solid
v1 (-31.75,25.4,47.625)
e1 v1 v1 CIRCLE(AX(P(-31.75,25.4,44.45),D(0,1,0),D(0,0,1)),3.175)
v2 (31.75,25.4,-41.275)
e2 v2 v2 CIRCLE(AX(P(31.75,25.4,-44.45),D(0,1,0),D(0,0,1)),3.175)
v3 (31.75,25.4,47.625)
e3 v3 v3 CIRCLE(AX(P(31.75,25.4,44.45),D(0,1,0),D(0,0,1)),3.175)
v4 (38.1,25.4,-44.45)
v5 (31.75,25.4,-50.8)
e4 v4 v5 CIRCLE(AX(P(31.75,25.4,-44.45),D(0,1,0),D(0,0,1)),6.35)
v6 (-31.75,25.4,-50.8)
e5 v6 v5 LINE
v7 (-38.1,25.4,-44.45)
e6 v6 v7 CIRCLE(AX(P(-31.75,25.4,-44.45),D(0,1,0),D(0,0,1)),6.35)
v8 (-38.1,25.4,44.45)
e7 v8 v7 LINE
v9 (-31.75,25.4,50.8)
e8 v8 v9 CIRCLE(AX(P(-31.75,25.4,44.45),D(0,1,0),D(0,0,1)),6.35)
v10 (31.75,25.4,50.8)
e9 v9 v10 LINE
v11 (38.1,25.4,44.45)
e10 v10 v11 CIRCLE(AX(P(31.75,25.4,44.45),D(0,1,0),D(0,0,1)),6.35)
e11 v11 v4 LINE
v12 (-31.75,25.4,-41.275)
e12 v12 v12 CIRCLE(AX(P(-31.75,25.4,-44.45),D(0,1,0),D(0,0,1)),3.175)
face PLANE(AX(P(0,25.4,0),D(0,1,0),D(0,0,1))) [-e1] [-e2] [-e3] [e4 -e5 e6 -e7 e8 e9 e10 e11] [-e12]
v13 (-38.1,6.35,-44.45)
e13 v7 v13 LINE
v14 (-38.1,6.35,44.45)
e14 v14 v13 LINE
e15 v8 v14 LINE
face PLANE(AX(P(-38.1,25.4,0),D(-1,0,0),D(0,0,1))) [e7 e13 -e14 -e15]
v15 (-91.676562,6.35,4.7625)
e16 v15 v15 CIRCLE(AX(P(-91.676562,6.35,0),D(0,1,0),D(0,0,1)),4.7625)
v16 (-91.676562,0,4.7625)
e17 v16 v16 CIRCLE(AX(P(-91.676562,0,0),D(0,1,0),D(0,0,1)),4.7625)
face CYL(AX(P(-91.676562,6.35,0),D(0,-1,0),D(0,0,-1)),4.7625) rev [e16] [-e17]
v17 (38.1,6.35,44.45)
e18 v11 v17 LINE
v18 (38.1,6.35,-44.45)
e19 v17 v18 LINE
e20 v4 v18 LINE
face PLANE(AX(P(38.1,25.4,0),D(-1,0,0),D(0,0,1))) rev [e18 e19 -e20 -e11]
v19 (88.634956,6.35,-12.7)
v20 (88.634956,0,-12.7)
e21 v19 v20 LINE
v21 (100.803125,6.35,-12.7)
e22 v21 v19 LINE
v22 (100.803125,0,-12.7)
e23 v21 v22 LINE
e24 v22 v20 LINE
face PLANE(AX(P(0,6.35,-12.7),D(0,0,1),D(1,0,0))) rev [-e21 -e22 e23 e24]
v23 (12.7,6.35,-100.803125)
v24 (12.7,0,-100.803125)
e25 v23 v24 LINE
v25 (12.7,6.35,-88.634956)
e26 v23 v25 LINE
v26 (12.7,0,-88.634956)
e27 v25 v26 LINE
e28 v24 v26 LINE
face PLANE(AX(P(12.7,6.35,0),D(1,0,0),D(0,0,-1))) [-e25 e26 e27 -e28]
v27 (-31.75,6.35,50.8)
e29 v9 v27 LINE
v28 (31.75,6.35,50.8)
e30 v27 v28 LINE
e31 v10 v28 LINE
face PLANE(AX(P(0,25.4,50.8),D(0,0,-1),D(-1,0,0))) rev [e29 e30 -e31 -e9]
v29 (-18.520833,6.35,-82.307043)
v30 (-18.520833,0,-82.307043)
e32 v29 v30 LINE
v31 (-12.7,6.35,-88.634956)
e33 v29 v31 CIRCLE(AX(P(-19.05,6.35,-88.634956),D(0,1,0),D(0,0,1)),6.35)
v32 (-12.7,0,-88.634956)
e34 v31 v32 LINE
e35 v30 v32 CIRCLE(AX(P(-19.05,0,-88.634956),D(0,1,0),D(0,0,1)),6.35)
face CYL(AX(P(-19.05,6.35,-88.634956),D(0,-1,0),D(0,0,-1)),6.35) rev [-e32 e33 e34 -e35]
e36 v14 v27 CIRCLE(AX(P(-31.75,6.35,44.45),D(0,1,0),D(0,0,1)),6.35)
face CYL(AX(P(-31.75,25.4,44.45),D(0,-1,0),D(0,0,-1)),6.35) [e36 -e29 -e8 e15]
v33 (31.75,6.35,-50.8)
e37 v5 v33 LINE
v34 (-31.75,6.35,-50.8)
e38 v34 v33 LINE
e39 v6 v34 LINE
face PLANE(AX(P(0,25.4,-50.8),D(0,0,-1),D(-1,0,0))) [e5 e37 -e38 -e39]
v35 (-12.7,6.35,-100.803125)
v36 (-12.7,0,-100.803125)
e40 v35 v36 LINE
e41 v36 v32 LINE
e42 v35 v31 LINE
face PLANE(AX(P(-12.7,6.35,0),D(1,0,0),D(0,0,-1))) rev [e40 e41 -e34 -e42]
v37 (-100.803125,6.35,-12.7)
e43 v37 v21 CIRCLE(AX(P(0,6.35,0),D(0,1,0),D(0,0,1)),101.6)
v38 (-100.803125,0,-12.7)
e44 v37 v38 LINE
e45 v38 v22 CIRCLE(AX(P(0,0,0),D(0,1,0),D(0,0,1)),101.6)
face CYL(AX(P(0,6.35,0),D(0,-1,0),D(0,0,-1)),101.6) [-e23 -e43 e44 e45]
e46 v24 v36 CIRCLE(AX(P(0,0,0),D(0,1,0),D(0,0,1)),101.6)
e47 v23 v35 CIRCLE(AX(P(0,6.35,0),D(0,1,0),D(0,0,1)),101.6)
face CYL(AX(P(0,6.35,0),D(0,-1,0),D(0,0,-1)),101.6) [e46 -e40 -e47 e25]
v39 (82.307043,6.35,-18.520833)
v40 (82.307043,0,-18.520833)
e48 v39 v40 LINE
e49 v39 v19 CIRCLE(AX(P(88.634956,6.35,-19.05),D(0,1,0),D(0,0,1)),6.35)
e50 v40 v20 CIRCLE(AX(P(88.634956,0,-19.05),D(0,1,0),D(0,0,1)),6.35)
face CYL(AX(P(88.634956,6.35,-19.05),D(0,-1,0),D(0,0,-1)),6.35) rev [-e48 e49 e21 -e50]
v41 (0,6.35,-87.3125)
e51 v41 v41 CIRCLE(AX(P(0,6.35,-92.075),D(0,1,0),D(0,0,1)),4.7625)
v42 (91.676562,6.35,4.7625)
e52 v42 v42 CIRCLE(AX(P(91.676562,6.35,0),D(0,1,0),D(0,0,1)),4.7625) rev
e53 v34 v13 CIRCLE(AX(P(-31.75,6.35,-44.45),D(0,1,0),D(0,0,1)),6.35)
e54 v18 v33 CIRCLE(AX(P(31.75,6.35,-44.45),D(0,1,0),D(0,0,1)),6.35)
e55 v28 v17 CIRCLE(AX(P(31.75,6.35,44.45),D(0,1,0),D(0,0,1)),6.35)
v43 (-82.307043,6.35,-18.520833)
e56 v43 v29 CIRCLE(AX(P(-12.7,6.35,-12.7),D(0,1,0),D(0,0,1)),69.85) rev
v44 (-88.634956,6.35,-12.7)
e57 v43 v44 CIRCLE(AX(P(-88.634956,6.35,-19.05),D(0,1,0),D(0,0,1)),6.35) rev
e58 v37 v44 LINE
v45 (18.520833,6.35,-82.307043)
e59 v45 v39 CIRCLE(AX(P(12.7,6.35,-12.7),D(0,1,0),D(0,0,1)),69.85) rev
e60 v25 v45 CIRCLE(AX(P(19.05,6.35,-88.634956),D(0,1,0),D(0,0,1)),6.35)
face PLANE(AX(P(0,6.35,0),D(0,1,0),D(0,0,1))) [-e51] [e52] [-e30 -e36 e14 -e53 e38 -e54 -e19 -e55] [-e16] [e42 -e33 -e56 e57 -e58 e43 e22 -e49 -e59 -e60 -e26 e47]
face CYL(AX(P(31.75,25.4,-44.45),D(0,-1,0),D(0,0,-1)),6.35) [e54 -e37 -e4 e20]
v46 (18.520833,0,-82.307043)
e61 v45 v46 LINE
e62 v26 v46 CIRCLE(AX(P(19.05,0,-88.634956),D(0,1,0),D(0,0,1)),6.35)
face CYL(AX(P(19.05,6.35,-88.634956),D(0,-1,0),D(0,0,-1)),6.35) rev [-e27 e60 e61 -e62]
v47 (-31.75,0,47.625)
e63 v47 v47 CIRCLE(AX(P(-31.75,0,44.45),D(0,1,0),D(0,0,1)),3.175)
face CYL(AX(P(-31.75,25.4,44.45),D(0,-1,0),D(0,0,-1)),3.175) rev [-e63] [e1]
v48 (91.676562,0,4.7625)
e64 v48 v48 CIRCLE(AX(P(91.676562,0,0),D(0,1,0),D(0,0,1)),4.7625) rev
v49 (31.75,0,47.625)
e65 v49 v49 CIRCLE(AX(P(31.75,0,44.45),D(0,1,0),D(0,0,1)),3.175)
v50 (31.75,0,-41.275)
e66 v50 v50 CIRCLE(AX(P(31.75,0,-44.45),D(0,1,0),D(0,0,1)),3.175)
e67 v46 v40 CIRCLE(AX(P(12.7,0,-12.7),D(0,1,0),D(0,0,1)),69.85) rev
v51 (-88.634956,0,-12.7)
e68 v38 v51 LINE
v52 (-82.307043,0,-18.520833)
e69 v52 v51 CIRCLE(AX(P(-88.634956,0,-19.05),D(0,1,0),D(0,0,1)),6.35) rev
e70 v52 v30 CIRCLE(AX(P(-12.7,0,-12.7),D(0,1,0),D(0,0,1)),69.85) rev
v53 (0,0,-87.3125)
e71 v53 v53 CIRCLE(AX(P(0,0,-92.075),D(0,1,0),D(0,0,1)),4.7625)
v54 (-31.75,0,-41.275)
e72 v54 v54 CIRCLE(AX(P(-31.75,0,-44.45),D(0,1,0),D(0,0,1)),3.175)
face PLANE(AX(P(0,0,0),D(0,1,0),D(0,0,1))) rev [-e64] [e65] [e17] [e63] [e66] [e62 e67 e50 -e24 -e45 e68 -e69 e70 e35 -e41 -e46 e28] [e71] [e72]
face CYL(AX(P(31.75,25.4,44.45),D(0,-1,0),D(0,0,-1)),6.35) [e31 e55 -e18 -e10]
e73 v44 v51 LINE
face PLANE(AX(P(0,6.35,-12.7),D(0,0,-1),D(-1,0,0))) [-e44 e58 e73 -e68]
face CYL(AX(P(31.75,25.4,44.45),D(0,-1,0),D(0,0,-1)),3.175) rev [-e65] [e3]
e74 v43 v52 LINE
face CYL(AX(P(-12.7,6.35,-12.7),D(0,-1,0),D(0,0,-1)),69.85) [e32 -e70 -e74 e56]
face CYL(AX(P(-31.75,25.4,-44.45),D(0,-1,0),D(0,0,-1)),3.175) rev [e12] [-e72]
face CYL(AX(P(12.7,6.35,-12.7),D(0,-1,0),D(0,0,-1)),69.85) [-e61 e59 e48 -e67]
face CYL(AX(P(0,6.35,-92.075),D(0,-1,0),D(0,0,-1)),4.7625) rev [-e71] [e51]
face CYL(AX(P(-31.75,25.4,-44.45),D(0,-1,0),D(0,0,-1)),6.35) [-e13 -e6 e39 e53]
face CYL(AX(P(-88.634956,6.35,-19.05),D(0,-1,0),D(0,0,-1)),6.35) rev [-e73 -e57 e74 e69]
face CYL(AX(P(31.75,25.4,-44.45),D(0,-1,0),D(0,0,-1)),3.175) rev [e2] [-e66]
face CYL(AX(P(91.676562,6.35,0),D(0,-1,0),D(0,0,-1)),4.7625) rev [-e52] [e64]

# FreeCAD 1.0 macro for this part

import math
import FreeCAD as App
import Part
import Sketcher
from FreeCAD import Vector
Q = App.Units.Quantity

doc = App.newDocument("Part")
body = doc.addObject("PartDesign::Body", "Body")

sketch1 = doc.addObject("Sketcher::SketchObject", "Sketch")
body.addObject(sketch1)
sketch1.AttachmentSupport = (doc.XZ_Plane, [""])
sketch1.MapMode = "FlatFace"
sketch1.addGeometry([
    Part.LineSegment(Vector(31.8, -50.8, 0), Vector(-31.8, -50.8, 0)),
    Part.ArcOfCircle(Part.Circle(Vector(-31.8, -44.5, 0), Vector(0, 0, 1), 6.3), math.radians(180), math.radians(270)),
    Part.LineSegment(Vector(-38.1, -44.5, 0), Vector(-38.1, 44.5, 0)),
    Part.ArcOfCircle(Part.Circle(Vector(-31.8, 44.5, 0), Vector(0, 0, 1), 6.3), math.radians(90), math.radians(180)),
    Part.LineSegment(Vector(-31.8, 50.8, 0), Vector(31.8, 50.8, 0)),
    Part.ArcOfCircle(Part.Circle(Vector(31.8, 44.5, 0), Vector(0, 0, 1), 6.3), math.radians(0), math.radians(90)),
    Part.LineSegment(Vector(38.1, 44.5, 0), Vector(38.1, -44.5, 0)),
    Part.ArcOfCircle(Part.Circle(Vector(31.8, -44.5, 0), Vector(0, 0, 1), 6.3), math.radians(-90), math.radians(0)),
    Part.Circle(Vector(31.8, 44.5, 0), Vector(0, 0, 1), 3.2),
    Part.Circle(Vector(-31.8, 44.5, 0), Vector(0, 0, 1), 3.2),
    Part.Circle(Vector(31.8, -44.5, 0), Vector(0, 0, 1), 3.2),
    Part.Circle(Vector(-31.8, -44.5, 0), Vector(0, 0, 1), 3.2),
], False)
sketch1.addConstraint([
    Sketcher.Constraint("Tangent", 0, 2, 1, 2),
    Sketcher.Constraint("Tangent", 1, 1, 2, 1),
    Sketcher.Constraint("Tangent", 2, 2, 3, 2),
    Sketcher.Constraint("Tangent", 3, 1, 4, 1),
    Sketcher.Constraint("Tangent", 4, 2, 5, 2),
    Sketcher.Constraint("Tangent", 5, 1, 6, 1),
    Sketcher.Constraint("Tangent", 6, 2, 7, 2),
    Sketcher.Constraint("Tangent", 7, 1, 0, 1),
    Sketcher.Constraint("Horizontal", 0),
    Sketcher.Constraint("Vertical", 2),
    Sketcher.Constraint("Horizontal", 4),
    Sketcher.Constraint("Vertical", 6),
    Sketcher.Constraint("Coincident", 8, 3, 5, 3),
    Sketcher.Constraint("Coincident", 9, 3, 3, 3),
    Sketcher.Constraint("Coincident", 10, 3, 7, 3),
    Sketcher.Constraint("Coincident", 11, 3, 1, 3),
    Sketcher.Constraint("Equal", 1, 3),
    Sketcher.Constraint("Equal", 3, 5),
    Sketcher.Constraint("Equal", 5, 7),
    Sketcher.Constraint("Equal", 8, 9),
    Sketcher.Constraint("Equal", 9, 10),
    Sketcher.Constraint("Equal", 10, 11),
    Sketcher.Constraint("Symmetric", 1, 3, 5, 3, -1, 1),
    Sketcher.Constraint("Diameter", 8, Q("0.25 in")),
    Sketcher.Constraint("Radius", 1, Q("0.25 in")),
    Sketcher.Constraint("DistanceX", 0, 2, 0, 1, Q("2.5 in")),
    Sketcher.Constraint("DistanceY", 2, 1, 2, 2, Q("3.5 in")),
])
pad1 = doc.addObject("PartDesign::Pad", "Pad")
body.addObject(pad1)
pad1.Profile = sketch1
pad1.Length = Q("1 in")
pad1.Reversed = True

sketch2 = doc.addObject("Sketcher::SketchObject", "Sketch001")
body.addObject(sketch2)
sketch2.AttachmentSupport = (doc.XZ_Plane, [""])
sketch2.MapMode = "FlatFace"
sketch2.addGeometry([
    Part.ArcOfCircle(Part.Circle(Vector(-12.7, -12.7, 0), Vector(0, 0, 1), 69.8), math.radians(-175), math.radians(-95)),
    Part.ArcOfCircle(Part.Circle(Vector(-88.6, -19.1, 0), Vector(0, 0, 1), 6.4), math.radians(5), math.radians(90)),
    Part.LineSegment(Vector(-88.6, -12.7, 0), Vector(-100.8, -12.7, 0)),
    Part.ArcOfCircle(Part.Circle(Vector(0, 0, 0), Vector(0, 0, 1), 101.6), math.radians(-7), math.radians(187)),
    Part.LineSegment(Vector(100.8, -12.7, 0), Vector(88.6, -12.7, 0)),
    Part.ArcOfCircle(Part.Circle(Vector(88.6, -19.1, 0), Vector(0, 0, 1), 6.4), math.radians(90), math.radians(175)),
    Part.ArcOfCircle(Part.Circle(Vector(12.7, -12.7, 0), Vector(0, 0, 1), 69.8), math.radians(-85), math.radians(-5)),
    Part.ArcOfCircle(Part.Circle(Vector(19.1, -88.6, 0), Vector(0, 0, 1), 6.4), math.radians(95), math.radians(180)),
    Part.LineSegment(Vector(12.7, -88.6, 0), Vector(12.7, -100.8, 0)),
    Part.ArcOfCircle(Part.Circle(Vector(0, 0, 0), Vector(0, 0, 1), 101.6), math.radians(-97.18), math.radians(-82.82)),
    Part.LineSegment(Vector(-12.7, -100.8, 0), Vector(-12.7, -88.6, 0)),
    Part.ArcOfCircle(Part.Circle(Vector(-19.1, -88.6, 0), Vector(0, 0, 1), 6.4), math.radians(0), math.radians(85)),
    Part.Circle(Vector(91.7, 0, 0), Vector(0, 0, 1), 4.8),
    Part.LineSegment(Vector(-31.8, -50.8, 0), Vector(31.8, -50.8, 0)),
    Part.ArcOfCircle(Part.Circle(Vector(31.8, -44.5, 0), Vector(0, 0, 1), 6.3), math.radians(-90), math.radians(0)),
    Part.LineSegment(Vector(38.1, -44.5, 0), Vector(38.1, 44.5, 0)),
    Part.ArcOfCircle(Part.Circle(Vector(31.8, 44.5, 0), Vector(0, 0, 1), 6.3), math.radians(0), math.radians(90)),
    Part.LineSegment(Vector(31.8, 50.8, 0), Vector(-31.8, 50.8, 0)),
    Part.ArcOfCircle(Part.Circle(Vector(-31.8, 44.5, 0), Vector(0, 0, 1), 6.3), math.radians(90), math.radians(180)),
    Part.LineSegment(Vector(-38.1, 44.5, 0), Vector(-38.1, -44.5, 0)),
    Part.ArcOfCircle(Part.Circle(Vector(-31.8, -44.5, 0), Vector(0, 0, 1), 6.3), math.radians(180), math.radians(270)),
    Part.Circle(Vector(-91.7, 0, 0), Vector(0, 0, 1), 4.8),
    Part.Circle(Vector(0, -92.1, 0), Vector(0, 0, 1), 4.8),
], False)
sketch2.addConstraint([
    Sketcher.Constraint("Tangent", 0, 1, 1, 1),
    Sketcher.Constraint("Tangent", 1, 2, 2, 1),
    Sketcher.Constraint("Coincident", 2, 2, 3, 2),
    Sketcher.Constraint("Coincident", 3, 1, 4, 1),
    Sketcher.Constraint("Tangent", 4, 2, 5, 1),
    Sketcher.Constraint("Tangent", 5, 2, 6, 2),
    Sketcher.Constraint("Tangent", 6, 1, 7, 1),
    Sketcher.Constraint("Tangent", 7, 2, 8, 1),
    Sketcher.Constraint("Coincident", 8, 2, 9, 2),
    Sketcher.Constraint("Coincident", 9, 1, 10, 1),
    Sketcher.Constraint("Tangent", 10, 2, 11, 1),
    Sketcher.Constraint("Tangent", 11, 2, 0, 2),
    Sketcher.Constraint("Tangent", 13, 2, 14, 1),
    Sketcher.Constraint("Tangent", 14, 2, 15, 1),
    Sketcher.Constraint("Tangent", 15, 2, 16, 1),
    Sketcher.Constraint("Tangent", 16, 2, 17, 1),
    Sketcher.Constraint("Tangent", 17, 2, 18, 1),
    Sketcher.Constraint("Tangent", 18, 2, 19, 1),
    Sketcher.Constraint("Tangent", 19, 2, 20, 1),
    Sketcher.Constraint("Tangent", 20, 2, 13, 1),
    Sketcher.Constraint("Horizontal", 2),
    Sketcher.Constraint("Horizontal", 4),
    Sketcher.Constraint("Vertical", 8),
    Sketcher.Constraint("Vertical", 10),
    Sketcher.Constraint("Horizontal", 13),
    Sketcher.Constraint("Vertical", 15),
    Sketcher.Constraint("Horizontal", 17),
    Sketcher.Constraint("Vertical", 19),
    Sketcher.Constraint("Coincident", 3, 3, -1, 1),
    Sketcher.Constraint("Coincident", 9, 3, -1, 1),
    Sketcher.Constraint("Equal", 1, 5),
    Sketcher.Constraint("Equal", 0, 6),
    Sketcher.Constraint("Equal", 5, 7),
    Sketcher.Constraint("Equal", 3, 9),
    Sketcher.Constraint("Equal", 7, 11),
    Sketcher.Constraint("Equal", 11, 14),
    Sketcher.Constraint("Equal", 14, 16),
    Sketcher.Constraint("Equal", 16, 18),
    Sketcher.Constraint("Equal", 18, 20),
    Sketcher.Constraint("Equal", 12, 21),
    Sketcher.Constraint("Equal", 21, 22),
    Sketcher.Constraint("Symmetric", 14, 3, 18, 3, -1, 1),
    Sketcher.Constraint("Symmetric", 12, 3, 21, 3, -1, 1),
    Sketcher.Constraint("Symmetric", 1, 3, 5, 3, -2),
    Sketcher.Constraint("Symmetric", 7, 3, 11, 3, -2),
    Sketcher.Constraint("PointOnObject", 12, 3, -1),
    Sketcher.Constraint("PointOnObject", 22, 3, -2),
    Sketcher.Constraint("Horizontal", 6, 3, 1, 2),
    Sketcher.Constraint("Vertical", 6, 3, 7, 2),
    Sketcher.Constraint("Equal", 4, 8),
    Sketcher.Constraint("Radius", 3, Q("4 in")),
    Sketcher.Constraint("Radius", 0, Q("2.75 in")),
    Sketcher.Constraint("Radius", 1, Q("0.25 in")),
    Sketcher.Constraint("Diameter", 12, Q("0.375 in")),
    Sketcher.Constraint("DistanceX", 13, 1, 13, 2, Q("2.5 in")),
    Sketcher.Constraint("DistanceY", 15, 1, 15, 2, Q("3.5 in")),
    Sketcher.Constraint("DistanceX", 0, 3, 6, 3, Q("1 in")),
    Sketcher.Constraint("DistanceY", 22, 3, -1, 1, Q("3.625 in")),
    Sketcher.Constraint("DistanceX", 21, 3, 0, 1, 9.36952),
])
pad2 = doc.addObject("PartDesign::Pad", "Pad001")
body.addObject(pad2)
pad2.Profile = sketch2
pad2.Length = Q("0.25 in")
pad2.Reversed = True

doc.recompute()
